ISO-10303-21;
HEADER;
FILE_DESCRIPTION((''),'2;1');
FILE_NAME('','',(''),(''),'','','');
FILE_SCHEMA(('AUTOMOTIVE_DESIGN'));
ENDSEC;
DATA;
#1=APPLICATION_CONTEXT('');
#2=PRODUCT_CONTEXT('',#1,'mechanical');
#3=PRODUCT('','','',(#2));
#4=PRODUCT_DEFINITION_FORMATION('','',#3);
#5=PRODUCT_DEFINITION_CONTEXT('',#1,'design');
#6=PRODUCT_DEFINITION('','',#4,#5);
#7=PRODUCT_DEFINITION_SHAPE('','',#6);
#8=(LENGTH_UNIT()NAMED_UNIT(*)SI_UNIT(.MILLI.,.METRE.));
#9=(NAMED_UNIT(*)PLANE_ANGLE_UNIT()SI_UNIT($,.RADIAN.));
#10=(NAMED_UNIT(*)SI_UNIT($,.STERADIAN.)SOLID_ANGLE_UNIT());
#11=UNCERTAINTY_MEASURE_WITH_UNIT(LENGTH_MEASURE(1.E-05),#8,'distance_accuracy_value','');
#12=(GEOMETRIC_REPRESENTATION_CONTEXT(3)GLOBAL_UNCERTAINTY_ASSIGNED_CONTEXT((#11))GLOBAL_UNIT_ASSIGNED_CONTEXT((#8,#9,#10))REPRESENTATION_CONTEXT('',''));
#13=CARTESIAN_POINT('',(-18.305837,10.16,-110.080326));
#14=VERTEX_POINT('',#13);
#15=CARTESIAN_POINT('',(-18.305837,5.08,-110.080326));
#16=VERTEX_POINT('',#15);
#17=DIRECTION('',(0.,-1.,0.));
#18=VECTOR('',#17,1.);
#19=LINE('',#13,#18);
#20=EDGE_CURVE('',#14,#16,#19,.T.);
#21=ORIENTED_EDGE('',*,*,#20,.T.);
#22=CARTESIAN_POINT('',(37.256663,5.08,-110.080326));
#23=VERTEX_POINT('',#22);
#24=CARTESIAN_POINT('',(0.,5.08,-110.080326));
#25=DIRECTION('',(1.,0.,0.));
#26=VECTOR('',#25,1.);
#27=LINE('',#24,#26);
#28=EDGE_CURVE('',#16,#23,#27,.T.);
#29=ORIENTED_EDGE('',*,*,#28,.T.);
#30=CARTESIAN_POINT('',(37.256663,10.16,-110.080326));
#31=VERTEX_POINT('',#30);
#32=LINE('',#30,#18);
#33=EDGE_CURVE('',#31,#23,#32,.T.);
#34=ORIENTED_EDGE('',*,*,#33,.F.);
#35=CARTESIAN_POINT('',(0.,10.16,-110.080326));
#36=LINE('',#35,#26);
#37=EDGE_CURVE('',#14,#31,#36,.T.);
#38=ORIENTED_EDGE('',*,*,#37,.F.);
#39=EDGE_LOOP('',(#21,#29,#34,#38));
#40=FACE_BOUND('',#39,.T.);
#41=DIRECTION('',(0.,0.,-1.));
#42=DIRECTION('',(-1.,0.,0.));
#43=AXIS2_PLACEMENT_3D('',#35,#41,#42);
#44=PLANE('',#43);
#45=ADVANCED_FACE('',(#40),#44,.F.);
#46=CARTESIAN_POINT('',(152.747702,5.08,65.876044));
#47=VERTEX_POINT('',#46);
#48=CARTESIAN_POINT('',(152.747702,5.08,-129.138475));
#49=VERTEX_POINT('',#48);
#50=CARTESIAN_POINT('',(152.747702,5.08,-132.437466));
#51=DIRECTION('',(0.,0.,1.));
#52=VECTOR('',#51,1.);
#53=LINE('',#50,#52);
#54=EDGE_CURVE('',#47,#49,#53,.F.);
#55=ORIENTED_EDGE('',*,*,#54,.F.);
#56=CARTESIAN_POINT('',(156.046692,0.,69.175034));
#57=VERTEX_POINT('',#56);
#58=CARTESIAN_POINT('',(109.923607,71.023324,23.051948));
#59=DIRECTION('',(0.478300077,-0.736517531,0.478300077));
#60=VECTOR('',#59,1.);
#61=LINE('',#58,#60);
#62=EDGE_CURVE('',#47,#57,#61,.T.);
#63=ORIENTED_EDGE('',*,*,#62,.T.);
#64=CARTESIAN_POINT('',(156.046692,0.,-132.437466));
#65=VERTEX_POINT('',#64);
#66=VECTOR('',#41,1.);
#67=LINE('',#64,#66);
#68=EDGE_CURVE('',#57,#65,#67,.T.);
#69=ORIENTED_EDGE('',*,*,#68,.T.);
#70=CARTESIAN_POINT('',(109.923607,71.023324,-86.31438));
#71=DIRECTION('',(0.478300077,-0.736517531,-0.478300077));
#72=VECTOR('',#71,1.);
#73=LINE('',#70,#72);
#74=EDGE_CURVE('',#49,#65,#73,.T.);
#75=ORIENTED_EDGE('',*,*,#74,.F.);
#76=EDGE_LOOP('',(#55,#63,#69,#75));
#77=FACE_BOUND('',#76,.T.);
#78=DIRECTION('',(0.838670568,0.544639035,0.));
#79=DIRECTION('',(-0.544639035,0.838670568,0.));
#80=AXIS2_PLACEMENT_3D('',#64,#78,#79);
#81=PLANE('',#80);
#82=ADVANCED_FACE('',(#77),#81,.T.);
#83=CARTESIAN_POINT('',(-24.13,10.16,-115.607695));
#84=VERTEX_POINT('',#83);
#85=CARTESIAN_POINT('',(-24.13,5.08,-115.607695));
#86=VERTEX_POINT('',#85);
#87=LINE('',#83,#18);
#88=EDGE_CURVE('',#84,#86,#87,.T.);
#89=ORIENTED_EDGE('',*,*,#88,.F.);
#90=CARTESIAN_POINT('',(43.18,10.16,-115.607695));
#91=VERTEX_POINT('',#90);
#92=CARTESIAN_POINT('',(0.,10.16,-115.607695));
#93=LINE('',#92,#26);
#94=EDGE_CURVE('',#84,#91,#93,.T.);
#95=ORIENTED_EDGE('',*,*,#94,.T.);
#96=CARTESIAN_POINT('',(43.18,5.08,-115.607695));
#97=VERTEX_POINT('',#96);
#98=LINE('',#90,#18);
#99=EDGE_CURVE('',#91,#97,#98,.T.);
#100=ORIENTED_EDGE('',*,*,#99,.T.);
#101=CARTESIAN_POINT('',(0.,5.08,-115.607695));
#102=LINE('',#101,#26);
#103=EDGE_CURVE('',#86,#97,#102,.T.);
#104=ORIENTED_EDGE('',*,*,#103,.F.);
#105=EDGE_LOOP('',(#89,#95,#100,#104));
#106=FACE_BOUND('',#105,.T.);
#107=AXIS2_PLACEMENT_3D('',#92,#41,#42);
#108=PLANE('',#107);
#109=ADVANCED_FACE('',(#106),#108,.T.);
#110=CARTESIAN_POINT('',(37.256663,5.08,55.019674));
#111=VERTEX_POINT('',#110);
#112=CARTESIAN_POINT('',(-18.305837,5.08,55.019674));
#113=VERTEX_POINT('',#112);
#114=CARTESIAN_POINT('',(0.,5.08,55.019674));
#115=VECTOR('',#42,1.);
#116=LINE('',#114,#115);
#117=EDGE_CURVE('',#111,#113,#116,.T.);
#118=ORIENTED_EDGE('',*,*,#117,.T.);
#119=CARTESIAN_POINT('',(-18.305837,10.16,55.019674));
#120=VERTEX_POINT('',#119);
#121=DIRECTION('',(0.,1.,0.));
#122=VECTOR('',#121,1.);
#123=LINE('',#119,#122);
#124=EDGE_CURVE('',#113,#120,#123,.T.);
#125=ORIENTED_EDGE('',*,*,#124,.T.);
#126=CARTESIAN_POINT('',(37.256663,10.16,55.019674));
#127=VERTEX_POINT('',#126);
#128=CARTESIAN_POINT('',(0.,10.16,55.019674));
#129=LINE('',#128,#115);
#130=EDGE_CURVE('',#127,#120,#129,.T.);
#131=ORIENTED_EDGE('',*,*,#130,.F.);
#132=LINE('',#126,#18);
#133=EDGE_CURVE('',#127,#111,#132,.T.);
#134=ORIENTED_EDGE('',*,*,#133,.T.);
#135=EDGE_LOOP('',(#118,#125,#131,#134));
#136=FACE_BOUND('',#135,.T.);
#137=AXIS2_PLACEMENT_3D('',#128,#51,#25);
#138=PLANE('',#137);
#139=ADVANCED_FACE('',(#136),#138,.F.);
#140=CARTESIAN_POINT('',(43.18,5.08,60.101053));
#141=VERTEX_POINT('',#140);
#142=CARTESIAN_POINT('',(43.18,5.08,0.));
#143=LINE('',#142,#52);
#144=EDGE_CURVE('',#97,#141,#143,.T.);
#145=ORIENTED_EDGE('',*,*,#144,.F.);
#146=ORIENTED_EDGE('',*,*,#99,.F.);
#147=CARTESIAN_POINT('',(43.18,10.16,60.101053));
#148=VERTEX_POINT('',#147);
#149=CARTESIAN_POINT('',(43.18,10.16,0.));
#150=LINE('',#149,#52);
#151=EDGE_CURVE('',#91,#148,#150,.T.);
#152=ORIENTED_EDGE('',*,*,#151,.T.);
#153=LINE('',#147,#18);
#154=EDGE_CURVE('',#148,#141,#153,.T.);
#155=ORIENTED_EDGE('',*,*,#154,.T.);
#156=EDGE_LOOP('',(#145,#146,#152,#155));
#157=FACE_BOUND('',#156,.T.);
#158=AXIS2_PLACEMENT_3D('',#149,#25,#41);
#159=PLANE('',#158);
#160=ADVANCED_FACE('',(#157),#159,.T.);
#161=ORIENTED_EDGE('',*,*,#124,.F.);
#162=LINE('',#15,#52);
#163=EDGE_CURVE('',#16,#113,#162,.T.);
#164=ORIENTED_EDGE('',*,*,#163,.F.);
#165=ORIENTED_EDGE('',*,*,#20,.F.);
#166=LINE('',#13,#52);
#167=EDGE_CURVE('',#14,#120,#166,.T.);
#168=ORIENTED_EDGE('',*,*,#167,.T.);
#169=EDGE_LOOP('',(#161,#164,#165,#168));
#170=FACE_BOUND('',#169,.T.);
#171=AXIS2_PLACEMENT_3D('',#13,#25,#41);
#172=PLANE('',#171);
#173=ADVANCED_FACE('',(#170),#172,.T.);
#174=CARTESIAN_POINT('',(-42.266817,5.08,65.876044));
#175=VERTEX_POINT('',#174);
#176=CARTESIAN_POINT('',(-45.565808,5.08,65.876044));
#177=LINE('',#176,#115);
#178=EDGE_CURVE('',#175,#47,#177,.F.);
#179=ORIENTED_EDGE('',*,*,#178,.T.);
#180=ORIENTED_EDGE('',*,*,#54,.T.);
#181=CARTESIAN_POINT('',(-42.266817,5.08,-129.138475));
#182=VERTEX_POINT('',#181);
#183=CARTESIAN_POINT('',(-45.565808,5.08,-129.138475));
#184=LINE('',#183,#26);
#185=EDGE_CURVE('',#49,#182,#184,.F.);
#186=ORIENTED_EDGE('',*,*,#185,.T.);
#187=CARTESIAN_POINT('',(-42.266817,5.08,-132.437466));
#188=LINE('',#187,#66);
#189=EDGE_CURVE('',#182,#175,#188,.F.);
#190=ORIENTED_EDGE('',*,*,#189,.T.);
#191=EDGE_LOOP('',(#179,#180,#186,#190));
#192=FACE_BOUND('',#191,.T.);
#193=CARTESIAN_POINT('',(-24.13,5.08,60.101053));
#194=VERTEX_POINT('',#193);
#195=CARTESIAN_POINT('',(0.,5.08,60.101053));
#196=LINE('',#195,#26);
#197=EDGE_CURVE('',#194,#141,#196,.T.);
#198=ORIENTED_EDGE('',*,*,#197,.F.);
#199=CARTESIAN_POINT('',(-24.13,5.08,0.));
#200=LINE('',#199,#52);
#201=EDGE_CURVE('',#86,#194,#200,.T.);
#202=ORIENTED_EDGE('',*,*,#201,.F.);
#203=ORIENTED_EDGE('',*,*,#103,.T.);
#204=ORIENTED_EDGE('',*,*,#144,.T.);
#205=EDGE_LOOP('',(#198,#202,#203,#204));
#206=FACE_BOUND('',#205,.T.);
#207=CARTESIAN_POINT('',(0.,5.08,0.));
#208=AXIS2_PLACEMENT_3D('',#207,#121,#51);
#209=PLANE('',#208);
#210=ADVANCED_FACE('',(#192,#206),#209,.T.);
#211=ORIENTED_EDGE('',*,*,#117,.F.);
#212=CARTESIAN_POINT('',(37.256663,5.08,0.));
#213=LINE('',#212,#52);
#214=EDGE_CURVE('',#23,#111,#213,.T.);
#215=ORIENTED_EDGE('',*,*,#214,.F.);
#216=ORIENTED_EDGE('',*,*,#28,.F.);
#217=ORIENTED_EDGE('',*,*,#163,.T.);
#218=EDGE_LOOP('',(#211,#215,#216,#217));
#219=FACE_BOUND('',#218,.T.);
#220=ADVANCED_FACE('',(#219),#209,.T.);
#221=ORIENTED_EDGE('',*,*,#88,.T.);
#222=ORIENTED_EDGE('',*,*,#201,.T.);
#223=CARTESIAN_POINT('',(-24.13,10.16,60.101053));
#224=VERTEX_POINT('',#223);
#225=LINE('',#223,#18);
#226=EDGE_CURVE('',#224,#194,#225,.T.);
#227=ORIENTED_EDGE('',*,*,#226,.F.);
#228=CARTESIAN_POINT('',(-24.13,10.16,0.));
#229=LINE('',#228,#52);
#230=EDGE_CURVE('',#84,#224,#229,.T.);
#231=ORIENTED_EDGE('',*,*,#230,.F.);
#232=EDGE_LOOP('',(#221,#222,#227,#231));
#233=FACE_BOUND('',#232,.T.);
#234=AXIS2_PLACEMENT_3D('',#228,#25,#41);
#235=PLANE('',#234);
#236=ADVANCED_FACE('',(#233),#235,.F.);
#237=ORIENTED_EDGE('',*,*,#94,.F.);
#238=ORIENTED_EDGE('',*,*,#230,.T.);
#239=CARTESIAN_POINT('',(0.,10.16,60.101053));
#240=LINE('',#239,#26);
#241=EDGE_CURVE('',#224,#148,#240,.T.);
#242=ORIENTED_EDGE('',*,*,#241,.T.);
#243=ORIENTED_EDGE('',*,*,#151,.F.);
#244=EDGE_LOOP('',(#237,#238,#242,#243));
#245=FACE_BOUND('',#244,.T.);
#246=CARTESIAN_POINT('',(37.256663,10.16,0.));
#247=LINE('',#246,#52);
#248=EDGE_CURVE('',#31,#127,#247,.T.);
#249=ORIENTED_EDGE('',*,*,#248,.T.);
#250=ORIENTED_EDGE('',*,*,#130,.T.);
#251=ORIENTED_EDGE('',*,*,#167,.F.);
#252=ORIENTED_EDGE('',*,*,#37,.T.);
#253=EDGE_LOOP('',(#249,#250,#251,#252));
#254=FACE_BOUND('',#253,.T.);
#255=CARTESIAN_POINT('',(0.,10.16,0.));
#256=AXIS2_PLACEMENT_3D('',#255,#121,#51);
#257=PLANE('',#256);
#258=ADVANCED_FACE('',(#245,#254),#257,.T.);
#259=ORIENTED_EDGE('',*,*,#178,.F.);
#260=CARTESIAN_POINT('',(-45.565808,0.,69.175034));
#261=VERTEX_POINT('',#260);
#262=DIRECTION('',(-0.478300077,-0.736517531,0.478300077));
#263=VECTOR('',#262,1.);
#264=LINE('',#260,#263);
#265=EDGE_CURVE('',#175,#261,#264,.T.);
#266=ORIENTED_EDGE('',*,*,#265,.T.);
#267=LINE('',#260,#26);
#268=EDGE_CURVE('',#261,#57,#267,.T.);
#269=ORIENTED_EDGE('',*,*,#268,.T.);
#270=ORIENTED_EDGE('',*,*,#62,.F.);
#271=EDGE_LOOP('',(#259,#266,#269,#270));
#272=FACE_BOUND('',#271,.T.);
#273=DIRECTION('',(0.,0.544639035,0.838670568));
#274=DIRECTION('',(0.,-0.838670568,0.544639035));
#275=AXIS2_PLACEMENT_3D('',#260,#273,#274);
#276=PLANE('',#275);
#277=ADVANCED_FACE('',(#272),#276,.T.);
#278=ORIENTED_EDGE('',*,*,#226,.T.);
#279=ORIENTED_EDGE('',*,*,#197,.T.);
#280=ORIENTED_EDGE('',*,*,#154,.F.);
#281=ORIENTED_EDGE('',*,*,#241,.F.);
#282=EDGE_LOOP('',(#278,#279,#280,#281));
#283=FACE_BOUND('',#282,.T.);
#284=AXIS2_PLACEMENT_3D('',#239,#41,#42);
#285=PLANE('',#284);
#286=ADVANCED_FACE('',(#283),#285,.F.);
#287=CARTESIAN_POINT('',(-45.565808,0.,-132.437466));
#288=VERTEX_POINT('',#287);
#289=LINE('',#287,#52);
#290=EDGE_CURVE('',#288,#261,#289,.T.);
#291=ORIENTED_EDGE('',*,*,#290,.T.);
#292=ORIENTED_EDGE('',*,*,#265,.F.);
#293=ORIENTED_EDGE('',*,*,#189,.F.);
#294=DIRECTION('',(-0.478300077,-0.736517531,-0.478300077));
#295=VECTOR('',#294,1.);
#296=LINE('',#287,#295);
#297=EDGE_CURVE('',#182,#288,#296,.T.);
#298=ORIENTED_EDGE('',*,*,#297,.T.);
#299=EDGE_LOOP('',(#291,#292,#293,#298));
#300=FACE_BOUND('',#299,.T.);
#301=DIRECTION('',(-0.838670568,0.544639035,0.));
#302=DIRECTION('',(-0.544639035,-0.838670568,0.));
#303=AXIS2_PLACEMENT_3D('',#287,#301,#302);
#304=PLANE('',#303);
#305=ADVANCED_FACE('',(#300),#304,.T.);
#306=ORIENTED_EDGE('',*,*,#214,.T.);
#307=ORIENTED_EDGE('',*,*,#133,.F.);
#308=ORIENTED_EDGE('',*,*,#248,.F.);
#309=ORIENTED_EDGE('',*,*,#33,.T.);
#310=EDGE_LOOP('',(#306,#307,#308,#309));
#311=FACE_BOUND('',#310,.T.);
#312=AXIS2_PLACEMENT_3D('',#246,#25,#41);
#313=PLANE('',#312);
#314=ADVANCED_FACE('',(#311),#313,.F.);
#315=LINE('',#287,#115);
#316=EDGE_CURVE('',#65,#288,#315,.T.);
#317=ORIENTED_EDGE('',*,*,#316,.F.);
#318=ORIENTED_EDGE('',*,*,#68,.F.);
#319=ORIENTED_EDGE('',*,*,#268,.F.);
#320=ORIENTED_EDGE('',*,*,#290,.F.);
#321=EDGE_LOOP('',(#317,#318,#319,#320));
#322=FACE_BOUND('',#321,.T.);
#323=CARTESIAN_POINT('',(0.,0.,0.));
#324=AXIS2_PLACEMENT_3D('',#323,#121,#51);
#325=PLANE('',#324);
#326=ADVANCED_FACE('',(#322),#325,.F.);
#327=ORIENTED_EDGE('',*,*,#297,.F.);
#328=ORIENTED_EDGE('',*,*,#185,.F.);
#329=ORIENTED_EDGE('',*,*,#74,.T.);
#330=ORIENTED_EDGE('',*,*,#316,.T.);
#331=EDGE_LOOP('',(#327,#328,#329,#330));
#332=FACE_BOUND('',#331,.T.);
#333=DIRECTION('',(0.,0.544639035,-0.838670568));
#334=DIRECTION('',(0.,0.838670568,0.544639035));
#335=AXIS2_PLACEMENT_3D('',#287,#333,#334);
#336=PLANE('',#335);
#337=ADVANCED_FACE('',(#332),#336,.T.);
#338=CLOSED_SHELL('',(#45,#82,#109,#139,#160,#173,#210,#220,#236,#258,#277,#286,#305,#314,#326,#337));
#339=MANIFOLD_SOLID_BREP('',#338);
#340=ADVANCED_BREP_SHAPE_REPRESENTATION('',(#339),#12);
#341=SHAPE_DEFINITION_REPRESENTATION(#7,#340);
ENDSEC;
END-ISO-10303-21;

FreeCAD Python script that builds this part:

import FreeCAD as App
import Part
import Sketcher
from FreeCAD import Vector
Q = App.Units.Quantity


def add_polygon(sketch, points):
    """Adds a closed chain of lines whose ends are joined by coincident constraints."""
    first, n = sketch.GeometryCount, len(points)
    for a, b in zip(points, points[1:] + points[:1]):
        sketch.addGeometry(Part.LineSegment(App.Vector(*a, 0), App.Vector(*b, 0)), False)
    for i in range(n):
        sketch.addConstraint(Sketcher.Constraint("Coincident", first + i, 2, first + (i + 1) % n, 1))

doc = App.newDocument("Part")
body = doc.addObject("PartDesign::Body", "Body")

sketch1 = body.newObject("Sketcher::SketchObject", "Sketch")
sketch1.AttachmentSupport = (doc.getObject("XZ_Plane"), [""])
sketch1.MapMode = "FlatFace"
add_polygon(sketch1, [(-46, -132), (-46, 69), (156, 69), (156, -132)])
sketch1.addConstraint(Sketcher.Constraint("Vertical", 0))
sketch1.addConstraint(Sketcher.Constraint("Horizontal", 1))
sketch1.addConstraint(Sketcher.Constraint("Vertical", 2))
sketch1.addConstraint(Sketcher.Constraint("Horizontal", 3))
sketch1.addConstraint(Sketcher.Constraint("Equal", 3, 0))
sketch1.addConstraint(Sketcher.Constraint("DistanceX", 1, 1, 1, 2, Q("7.9375 in")))
sketch1.addConstraint(Sketcher.Constraint("DistanceX", 0, 2, -1, 1, Q("45.565808 mm")))
sketch1.addConstraint(Sketcher.Constraint("DistanceY", -1, 1, 0, 2, Q("69.175034 mm")))
pad1 = body.newObject("PartDesign::Pad", "Pad")
pad1.Profile = sketch1
pad1.Length = Q("0.2 in")
pad1.Reversed = True
pad1.TaperAngle = -33

sketch2 = body.newObject("Sketcher::SketchObject", "Sketch001")
sketch2.AttachmentSupport = (doc.getObject("XZ_Plane"), [""])
sketch2.MapMode = "FlatFace"
sketch2.AttachmentOffset = App.Placement(Vector(0, 0, -0.2 * 25.4), App.Rotation())
add_polygon(sketch2, [(-24, -116), (-24, 60), (43, 60), (43, -116)])
add_polygon(sketch2, [(37, 55), (-18, 55), (-18, -110), (37, -110)])
sketch2.addConstraint(Sketcher.Constraint("Vertical", 0))
sketch2.addConstraint(Sketcher.Constraint("Horizontal", 1))
sketch2.addConstraint(Sketcher.Constraint("Vertical", 2))
sketch2.addConstraint(Sketcher.Constraint("Horizontal", 3))
sketch2.addConstraint(Sketcher.Constraint("Horizontal", 4))
sketch2.addConstraint(Sketcher.Constraint("Vertical", 5))
sketch2.addConstraint(Sketcher.Constraint("Horizontal", 6))
sketch2.addConstraint(Sketcher.Constraint("Vertical", 7))
sketch2.addConstraint(Sketcher.Constraint("DistanceY", 5, 2, 5, 1, Q("6.5 in")))
sketch2.addConstraint(Sketcher.Constraint("DistanceX", 1, 1, 1, 2, Q("2.65 in")))
sketch2.addConstraint(Sketcher.Constraint("DistanceX", -1, 1, 1, 2, Q("1.7 in")))
sketch2.addConstraint(Sketcher.Constraint("DistanceX", 4, 2, 4, 1, Q("2.1875 in")))
sketch2.addConstraint(Sketcher.Constraint("DistanceY", 0, 1, 0, 2, Q("175.708748 mm")))
sketch2.addConstraint(Sketcher.Constraint("DistanceY", 4, 2, 0, 2, Q("5.081379 mm")))
sketch2.addConstraint(Sketcher.Constraint("DistanceY", -1, 1, 0, 2, Q("60.101053 mm")))
sketch2.addConstraint(Sketcher.Constraint("DistanceX", 4, 2, -1, 1, Q("18.305837 mm")))
pad2 = body.newObject("PartDesign::Pad", "Pad001")
pad2.Profile = sketch2
pad2.Length = Q("0.2 in")
pad2.Reversed = True

doc.recompute()
